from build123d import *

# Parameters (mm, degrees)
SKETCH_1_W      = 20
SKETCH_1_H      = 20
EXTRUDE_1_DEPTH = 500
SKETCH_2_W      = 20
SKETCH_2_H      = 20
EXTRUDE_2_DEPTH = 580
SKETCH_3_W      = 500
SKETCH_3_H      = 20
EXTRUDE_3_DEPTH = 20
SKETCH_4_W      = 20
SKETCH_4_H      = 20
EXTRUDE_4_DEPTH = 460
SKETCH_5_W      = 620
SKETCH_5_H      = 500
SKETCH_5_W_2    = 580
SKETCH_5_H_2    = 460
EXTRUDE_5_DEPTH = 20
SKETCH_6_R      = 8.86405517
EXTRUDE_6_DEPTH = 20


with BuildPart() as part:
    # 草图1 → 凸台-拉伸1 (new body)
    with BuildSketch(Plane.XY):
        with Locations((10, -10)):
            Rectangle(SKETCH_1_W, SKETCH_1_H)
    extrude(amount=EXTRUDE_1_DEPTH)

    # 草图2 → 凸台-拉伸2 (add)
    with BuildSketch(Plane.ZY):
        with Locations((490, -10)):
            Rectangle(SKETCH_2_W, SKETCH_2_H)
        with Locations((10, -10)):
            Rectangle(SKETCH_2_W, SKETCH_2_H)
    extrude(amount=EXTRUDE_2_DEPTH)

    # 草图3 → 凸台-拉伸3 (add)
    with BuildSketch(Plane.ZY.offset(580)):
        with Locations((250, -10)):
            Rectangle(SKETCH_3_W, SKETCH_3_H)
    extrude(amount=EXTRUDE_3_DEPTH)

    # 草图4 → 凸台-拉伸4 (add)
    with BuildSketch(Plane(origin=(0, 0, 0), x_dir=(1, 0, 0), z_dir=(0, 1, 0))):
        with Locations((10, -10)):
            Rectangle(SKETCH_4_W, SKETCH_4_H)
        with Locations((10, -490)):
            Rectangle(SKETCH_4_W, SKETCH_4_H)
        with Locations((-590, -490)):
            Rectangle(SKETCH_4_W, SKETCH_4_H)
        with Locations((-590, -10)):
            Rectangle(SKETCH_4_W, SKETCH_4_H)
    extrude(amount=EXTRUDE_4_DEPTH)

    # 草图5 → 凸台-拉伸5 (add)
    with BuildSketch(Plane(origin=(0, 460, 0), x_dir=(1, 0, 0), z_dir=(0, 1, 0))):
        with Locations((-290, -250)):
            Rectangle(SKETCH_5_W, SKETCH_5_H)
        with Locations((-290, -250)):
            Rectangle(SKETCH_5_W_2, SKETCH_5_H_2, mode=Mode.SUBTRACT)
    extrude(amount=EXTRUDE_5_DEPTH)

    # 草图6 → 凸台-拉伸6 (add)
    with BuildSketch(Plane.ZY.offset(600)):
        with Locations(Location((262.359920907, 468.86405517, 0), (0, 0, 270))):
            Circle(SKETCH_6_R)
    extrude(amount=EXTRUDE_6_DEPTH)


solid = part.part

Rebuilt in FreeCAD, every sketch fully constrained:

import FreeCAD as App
import Part
import Sketcher

V = App.Vector
Q = App.Units.Quantity


def add_polygon(sketch, points):
    """Adds a closed chain of lines whose ends are joined by coincident constraints."""
    first, n = sketch.GeometryCount, len(points)
    for a, b in zip(points, points[1:] + points[:1]):
        sketch.addGeometry(Part.LineSegment(App.Vector(*a, 0), App.Vector(*b, 0)), False)
    for i in range(n):
        sketch.addConstraint(Sketcher.Constraint("Coincident", first + i, 2, first + (i + 1) % n, 1))

doc = App.newDocument("Part")
params = doc.addObject("Spreadsheet::Sheet", "Params")
for row, (alias, value) in enumerate([
    ("sketch1_width", "20 mm"),
    ("pad1_length", "500 mm"),
    ("sketch2_width", "20 mm"),
    ("pad2_length", "580 mm"),
    ("sketch3_width", "20 mm"),
    ("sketch3_height", "500 mm"),
    ("pad3_length", "20 mm"),
    ("sketch4_width", "20 mm"),
    ("pad4_length", "460 mm"),
    ("sketch5_width", "620 mm"),
    ("sketch5_width2", "580 mm"),
    ("sketch5_height", "500 mm"),
    ("sketch5_height2", "460 mm"),
    ("pad5_length", "20 mm"),
    ("pad6_length", "20 mm"),
], start=1):
    params.set(f"A{row}", alias)
    params.set(f"B{row}", "=" + value)
    params.setAlias(f"B{row}", alias)

body = doc.addObject("PartDesign::Body", "Body")

# Sketch on XY plane
sketch1 = body.newObject("Sketcher::SketchObject", "Sketch")
sketch1.AttachmentSupport = (doc.getObject("XY_Plane"), [""])
sketch1.MapMode = "FlatFace"
add_polygon(sketch1, [(0, 0), (0, -20), (20, -20), (20, 0)])  # lines 0-3
sketch1.addConstraint([
    Sketcher.Constraint("Vertical", 0),
    Sketcher.Constraint("Horizontal", 1),
    Sketcher.Constraint("Vertical", 2),
    Sketcher.Constraint("Horizontal", 3),
    Sketcher.Constraint("Coincident", 3, 2, -1, 1),
    Sketcher.Constraint("Equal", 3, 0),
    Sketcher.Constraint("DistanceX", 1, 1, 1, 2, Q("20 mm")),
])
sketch1.setExpression("Constraints[10]", "Params.sketch1_width")
pad1 = body.newObject("PartDesign::Pad", "Pad")
pad1.Profile = sketch1
pad1.setExpression("Length", "Params.pad1_length")

# Sketch on YZ plane
sketch2 = body.newObject("Sketcher::SketchObject", "Sketch001")
sketch2.AttachmentSupport = (doc.getObject("YZ_Plane"), [""])
sketch2.MapMode = "FlatFace"
add_polygon(sketch2, [(0, 480), (-20, 480), (-20, 500), (0, 500)])  # lines 0-3
add_polygon(sketch2, [(0, 0), (-20, 0), (-20, 20), (0, 20)])  # lines 4-7
sketch2.addConstraint([
    Sketcher.Constraint("Horizontal", 0),
    Sketcher.Constraint("Vertical", 1),
    Sketcher.Constraint("Horizontal", 2),
    Sketcher.Constraint("Vertical", 3),
    Sketcher.Constraint("Horizontal", 4),
    Sketcher.Constraint("Vertical", 5),
    Sketcher.Constraint("Horizontal", 6),
    Sketcher.Constraint("Vertical", 7),
    Sketcher.Constraint("Coincident", 7, 2, -1, 1),
    Sketcher.Constraint("PointOnObject", 2, 2, -2),
    Sketcher.Constraint("Vertical", 1, 2, 4, 2),
    Sketcher.Constraint("Equal", 6, 1),
    Sketcher.Constraint("Equal", 3, 5),
    Sketcher.Constraint("DistanceX", 0, 2, 0, 1, Q("20 mm")),
    Sketcher.Constraint("DistanceY", -1, 1, 0, 2, Q("480 mm")),
])
sketch2.setExpression("Constraints[21]", "Params.sketch2_width")
pad2 = body.newObject("PartDesign::Pad", "Pad001")
pad2.Profile = sketch2
pad2.setExpression("Length", "Params.pad2_length")
pad2.Reversed = True

# Sketch on YZ plane
sketch3 = body.newObject("Sketcher::SketchObject", "Sketch002")
sketch3.AttachmentSupport = (doc.getObject("YZ_Plane"), [""])
sketch3.MapMode = "FlatFace"
sketch3.AttachmentOffset = App.Placement(V(0, 0, -580), App.Rotation())
add_polygon(sketch3, [(0, 0), (-20, 0), (-20, 500), (0, 500)])  # lines 0-3
sketch3.addConstraint([
    Sketcher.Constraint("Horizontal", 0),
    Sketcher.Constraint("Vertical", 1),
    Sketcher.Constraint("Horizontal", 2),
    Sketcher.Constraint("Vertical", 3),
    Sketcher.Constraint("Coincident", 3, 2, -1, 1),
    Sketcher.Constraint("DistanceX", 0, 2, 0, 1, Q("20 mm")),
    Sketcher.Constraint("DistanceY", 1, 1, 1, 2, Q("500 mm")),
])
sketch3.setExpression("Constraints[9]", "Params.sketch3_width")
sketch3.setExpression("Constraints[10]", "Params.sketch3_height")
pad3 = body.newObject("PartDesign::Pad", "Pad002")
pad3.Profile = sketch3
pad3.setExpression("Length", "Params.pad3_length")
pad3.Reversed = True

# Sketch on XZ plane
sketch4 = body.newObject("Sketcher::SketchObject", "Sketch003")
sketch4.AttachmentSupport = (doc.getObject("XZ_Plane"), [""])
sketch4.MapMode = "FlatFace"
add_polygon(sketch4, [(0, 0), (0, 20), (20, 20), (20, 0)])  # lines 0-3
add_polygon(sketch4, [(0, 480), (0, 500), (20, 500), (20, 480)])  # lines 4-7
add_polygon(sketch4, [(-600, 480), (-600, 500), (-580, 500), (-580, 480)])  # lines 8-11
add_polygon(sketch4, [(-600, 0), (-600, 20), (-580, 20), (-580, 0)])  # lines 12-15
sketch4.addConstraint([
    Sketcher.Constraint("Vertical", 0),
    Sketcher.Constraint("Horizontal", 1),
    Sketcher.Constraint("Vertical", 2),
    Sketcher.Constraint("Horizontal", 3),
    Sketcher.Constraint("Vertical", 4),
    Sketcher.Constraint("Horizontal", 5),
    Sketcher.Constraint("Vertical", 6),
    Sketcher.Constraint("Horizontal", 7),
    Sketcher.Constraint("Vertical", 8),
    Sketcher.Constraint("Horizontal", 9),
    Sketcher.Constraint("Vertical", 10),
    Sketcher.Constraint("Horizontal", 11),
    Sketcher.Constraint("Vertical", 12),
    Sketcher.Constraint("Horizontal", 13),
    Sketcher.Constraint("Vertical", 14),
    Sketcher.Constraint("Horizontal", 15),
    Sketcher.Constraint("Coincident", 3, 2, -1, 1),
    Sketcher.Constraint("PointOnObject", 4, 2, -2),
    Sketcher.Constraint("PointOnObject", 14, 2, -1),
    Sketcher.Constraint("Horizontal", 5, 2, 8, 2),
    Sketcher.Constraint("Horizontal", 7, 2, 10, 2),
    Sketcher.Constraint("Horizontal", 1, 2, 12, 2),
    Sketcher.Constraint("Vertical", 2, 2, 5, 2),
    Sketcher.Constraint("Vertical", 11, 2, 12, 2),
    Sketcher.Constraint("Vertical", 10, 2, 13, 2),
    Sketcher.Constraint("Equal", 7, 9),
    Sketcher.Constraint("Equal", 15, 0),
    Sketcher.Constraint("Equal", 2, 4),
    Sketcher.Constraint("DistanceX", 1, 1, 1, 2, Q("20 mm")),
    Sketcher.Constraint("DistanceY", -1, 1, 4, 2, Q("500 mm")),
    Sketcher.Constraint("DistanceX", 8, 2, -1, 1, Q("600 mm")),
])
sketch4.setExpression("Constraints[44]", "Params.sketch4_width")
pad4 = body.newObject("PartDesign::Pad", "Pad003")
pad4.Profile = sketch4
pad4.setExpression("Length", "Params.pad4_length")
pad4.Reversed = True

# Sketch on XZ plane
sketch5 = body.newObject("Sketcher::SketchObject", "Sketch004")
sketch5.AttachmentSupport = (doc.getObject("XZ_Plane"), [""])
sketch5.MapMode = "FlatFace"
sketch5.AttachmentOffset = App.Placement(V(0, 0, -460), App.Rotation())
add_polygon(sketch5, [(-600, 0), (-600, 500), (20, 500), (20, 0)])  # lines 0-3
add_polygon(sketch5, [(0, 480), (-580, 480), (-580, 20), (0, 20)])  # lines 4-7
sketch5.addConstraint([
    Sketcher.Constraint("Vertical", 0),
    Sketcher.Constraint("Horizontal", 1),
    Sketcher.Constraint("Vertical", 2),
    Sketcher.Constraint("Horizontal", 3),
    Sketcher.Constraint("Horizontal", 4),
    Sketcher.Constraint("Vertical", 5),
    Sketcher.Constraint("Horizontal", 6),
    Sketcher.Constraint("Vertical", 7),
    Sketcher.Constraint("PointOnObject", 2, 2, -1),
    Sketcher.Constraint("PointOnObject", 6, 2, -2),
    Sketcher.Constraint("DistanceX", 1, 1, 1, 2, Q("620 mm")),
    Sketcher.Constraint("DistanceX", 4, 2, 4, 1, Q("580 mm")),
    Sketcher.Constraint("DistanceY", 0, 1, 0, 2, Q("500 mm")),
    Sketcher.Constraint("DistanceY", 5, 2, 5, 1, Q("460 mm")),
    Sketcher.Constraint("DistanceX", 0, 2, -1, 1, Q("600 mm")),
    Sketcher.Constraint("DistanceY", -1, 1, 4, 2, Q("480 mm")),
])
sketch5.setExpression("Constraints[18]", "Params.sketch5_width")
sketch5.setExpression("Constraints[19]", "Params.sketch5_width2")
sketch5.setExpression("Constraints[20]", "Params.sketch5_height")
sketch5.setExpression("Constraints[21]", "Params.sketch5_height2")
pad5 = body.newObject("PartDesign::Pad", "Pad004")
pad5.Profile = sketch5
pad5.setExpression("Length", "Params.pad5_length")
pad5.Reversed = True

# Sketch on YZ plane
sketch6 = body.newObject("Sketcher::SketchObject", "Sketch005")
sketch6.AttachmentSupport = (doc.getObject("YZ_Plane"), [""])
sketch6.MapMode = "FlatFace"
sketch6.AttachmentOffset = App.Placement(V(0, 0, -600), App.Rotation())
sketch6.addGeometry(Part.Circle(V(468.864055, 262.359921, 0), V(0, 0, 1), 8.864055), False)
sketch6.addConstraint([
    Sketcher.Constraint("Diameter", 0, Q("17.72811 mm")),
    Sketcher.Constraint("DistanceY", -1, 1, 0, 3, Q("262.359921 mm")),
    Sketcher.Constraint("DistanceX", -1, 1, 0, 3, Q("468.864055 mm")),
])
pad6 = body.newObject("PartDesign::Pad", "Pad005")
pad6.Profile = sketch6
pad6.setExpression("Length", "Params.pad6_length")
pad6.Reversed = True

doc.recompute()
